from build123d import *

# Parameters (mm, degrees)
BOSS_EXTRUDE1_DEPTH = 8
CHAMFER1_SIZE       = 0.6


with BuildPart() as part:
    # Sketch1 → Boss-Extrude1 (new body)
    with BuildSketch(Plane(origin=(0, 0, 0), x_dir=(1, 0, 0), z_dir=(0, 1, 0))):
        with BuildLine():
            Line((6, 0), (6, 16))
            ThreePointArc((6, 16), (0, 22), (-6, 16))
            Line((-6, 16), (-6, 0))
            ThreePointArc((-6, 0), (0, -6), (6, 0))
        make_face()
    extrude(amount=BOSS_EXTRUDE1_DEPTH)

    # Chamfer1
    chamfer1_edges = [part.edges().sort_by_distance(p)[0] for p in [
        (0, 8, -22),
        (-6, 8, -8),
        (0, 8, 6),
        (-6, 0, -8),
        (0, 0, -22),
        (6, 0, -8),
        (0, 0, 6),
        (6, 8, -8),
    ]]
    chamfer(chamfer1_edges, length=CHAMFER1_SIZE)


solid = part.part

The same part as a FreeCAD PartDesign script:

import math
import FreeCAD as App
import Part
import Sketcher

V = App.Vector


def edges_at(feature, points):
    """Names of the edges that pass closest to the given points."""
    edges = feature.Shape.Edges
    near = lambda p: min(range(len(edges)), key=lambda i: edges[i].distToShape(Part.Vertex(*p))[0])
    return sorted({f"Edge{near(p) + 1}" for p in points})

doc = App.newDocument("Part")
body = doc.addObject("PartDesign::Body", "Body")

sketch1 = body.newObject("Sketcher::SketchObject", "Sketch")
sketch1.AttachmentSupport = (doc.getObject("XZ_Plane"), [""])
sketch1.MapMode = "FlatFace"
sketch1.addGeometry([
    Part.LineSegment(V(6, 0, 0), V(6, -16, 0)),
    Part.ArcOfCircle(Part.Circle(V(0, -16, 0), V(0, 0, 1), 6), math.radians(180), math.radians(360)),
    Part.LineSegment(V(-6, -16, 0), V(-6, 0, 0)),
    Part.ArcOfCircle(Part.Circle(V(0, 0, 0), V(0, 0, 1), 6), math.radians(0), math.radians(180)),
], False)
sketch1.addConstraint([
    Sketcher.Constraint("Tangent", 0, 2, 1, 2),
    Sketcher.Constraint("Tangent", 1, 1, 2, 1),
    Sketcher.Constraint("Tangent", 2, 2, 3, 2),
    Sketcher.Constraint("Tangent", 3, 1, 0, 1),
    Sketcher.Constraint("Vertical", 0),
    Sketcher.Constraint("Vertical", 2),
    Sketcher.Constraint("Coincident", 3, 3, -1, 1),
    Sketcher.Constraint("Radius", 1, 6.0),
    Sketcher.Constraint("DistanceY", 0, 2, 0, 1, 16.0),
])
pad1 = body.newObject("PartDesign::Pad", "Pad")
pad1.Profile = sketch1
pad1.Length = 8
pad1.Reversed = True
doc.recompute()

chamfer = body.newObject("PartDesign::Chamfer", "Chamfer")
chamfer.Base = (pad1, edges_at(pad1, [
    (0, 8, -22),
    (-6, 8, -8),
    (0, 8, 6),
    (-6, 0, -8),
    (0, 0, -22),
    (6, 0, -8),
    (0, 0, 6),
    (6, 8, -8),
]))
chamfer.Size = 0.6

doc.recompute()
